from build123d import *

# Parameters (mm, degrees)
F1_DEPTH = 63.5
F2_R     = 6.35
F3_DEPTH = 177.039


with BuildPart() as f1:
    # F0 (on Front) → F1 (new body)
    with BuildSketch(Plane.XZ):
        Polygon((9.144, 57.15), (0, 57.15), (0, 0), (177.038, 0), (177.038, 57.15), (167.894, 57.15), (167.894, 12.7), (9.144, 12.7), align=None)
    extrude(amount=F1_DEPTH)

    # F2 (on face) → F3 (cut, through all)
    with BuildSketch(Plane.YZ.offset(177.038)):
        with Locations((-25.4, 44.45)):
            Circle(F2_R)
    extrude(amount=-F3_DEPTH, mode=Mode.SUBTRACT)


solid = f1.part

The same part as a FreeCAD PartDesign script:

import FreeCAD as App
import Part
import Sketcher

V = App.Vector
Q = App.Units.Quantity

doc = App.newDocument("Part")
body = doc.addObject("PartDesign::Body", "Body")

# Sketch on XZ plane
sketch1 = body.newObject("Sketcher::SketchObject", "Sketch")
sketch1.AttachmentSupport = (doc.getObject("XZ_Plane"), [""])
sketch1.MapMode = "FlatFace"
sketch1.addGeometry([
    Part.LineSegment(V(9, 57, 0), V(0, 57, 0)),  # 0
    Part.LineSegment(V(0, 57, 0), V(0, 0, 0)),  # 1
    Part.LineSegment(V(0, 0, 0), V(177, 0, 0)),  # 2
    Part.LineSegment(V(177, 0, 0), V(177, 57, 0)),  # 3
    Part.LineSegment(V(177, 57, 0), V(168, 57, 0)),  # 4
    Part.LineSegment(V(168, 57, 0), V(168, 13, 0)),  # 5
    Part.LineSegment(V(168, 13, 0), V(9, 13, 0)),  # 6
    Part.LineSegment(V(9, 13, 0), V(9, 57, 0)),  # 7
], False)
sketch1.addConstraint([
    Sketcher.Constraint("Coincident", 0, 2, 1, 1),
    Sketcher.Constraint("Coincident", 1, 2, 2, 1),
    Sketcher.Constraint("Coincident", 2, 2, 3, 1),
    Sketcher.Constraint("Coincident", 3, 2, 4, 1),
    Sketcher.Constraint("Coincident", 4, 2, 5, 1),
    Sketcher.Constraint("Coincident", 5, 2, 6, 1),
    Sketcher.Constraint("Coincident", 6, 2, 7, 1),
    Sketcher.Constraint("Coincident", 7, 2, 0, 1),
    Sketcher.Constraint("Horizontal", 0),
    Sketcher.Constraint("Vertical", 1),
    Sketcher.Constraint("Horizontal", 2),
    Sketcher.Constraint("Vertical", 3),
    Sketcher.Constraint("Horizontal", 4),
    Sketcher.Constraint("Vertical", 5),
    Sketcher.Constraint("Horizontal", 6),
    Sketcher.Constraint("Vertical", 7),
    Sketcher.Constraint("Coincident", 1, 2, -1, 1),
    Sketcher.Constraint("Horizontal", 0, 2, 3, 2),
    Sketcher.Constraint("Equal", 0, 4),
    Sketcher.Constraint("DistanceX", 0, 2, 0, 1, Q("0.36 in")),
    Sketcher.Constraint("DistanceX", 2, 1, 2, 2, Q("6.97 in")),
    Sketcher.Constraint("DistanceY", 1, 2, 1, 1, Q("2.25 in")),
    Sketcher.Constraint("DistanceY", 5, 2, 5, 1, Q("1.75 in")),
])
pad1 = body.newObject("PartDesign::Pad", "Pad")
pad1.Profile = sketch1
pad1.Length = Q("2.5 in")

# Sketch on YZ plane
sketch2 = body.newObject("Sketcher::SketchObject", "Sketch001")
sketch2.AttachmentSupport = (doc.getObject("YZ_Plane"), [""])
sketch2.MapMode = "FlatFace"
sketch2.AttachmentOffset = App.Placement(V(0, 0, 6.97 * 25.4), App.Rotation())
sketch2.addGeometry(Part.Circle(V(-25, 44, 0), V(0, 0, 1), 6), False)
sketch2.addConstraint([
    Sketcher.Constraint("Diameter", 0, Q("0.5 in")),
    Sketcher.Constraint("DistanceX", 0, 3, -1, 1, Q("1 in")),
    Sketcher.Constraint("DistanceY", -1, 1, 0, 3, Q("1.75 in")),
])
pocket1 = body.newObject("PartDesign::Pocket", "Pocket")
pocket1.Profile = sketch2
pocket1.Type = "ThroughAll"

doc.recompute()
